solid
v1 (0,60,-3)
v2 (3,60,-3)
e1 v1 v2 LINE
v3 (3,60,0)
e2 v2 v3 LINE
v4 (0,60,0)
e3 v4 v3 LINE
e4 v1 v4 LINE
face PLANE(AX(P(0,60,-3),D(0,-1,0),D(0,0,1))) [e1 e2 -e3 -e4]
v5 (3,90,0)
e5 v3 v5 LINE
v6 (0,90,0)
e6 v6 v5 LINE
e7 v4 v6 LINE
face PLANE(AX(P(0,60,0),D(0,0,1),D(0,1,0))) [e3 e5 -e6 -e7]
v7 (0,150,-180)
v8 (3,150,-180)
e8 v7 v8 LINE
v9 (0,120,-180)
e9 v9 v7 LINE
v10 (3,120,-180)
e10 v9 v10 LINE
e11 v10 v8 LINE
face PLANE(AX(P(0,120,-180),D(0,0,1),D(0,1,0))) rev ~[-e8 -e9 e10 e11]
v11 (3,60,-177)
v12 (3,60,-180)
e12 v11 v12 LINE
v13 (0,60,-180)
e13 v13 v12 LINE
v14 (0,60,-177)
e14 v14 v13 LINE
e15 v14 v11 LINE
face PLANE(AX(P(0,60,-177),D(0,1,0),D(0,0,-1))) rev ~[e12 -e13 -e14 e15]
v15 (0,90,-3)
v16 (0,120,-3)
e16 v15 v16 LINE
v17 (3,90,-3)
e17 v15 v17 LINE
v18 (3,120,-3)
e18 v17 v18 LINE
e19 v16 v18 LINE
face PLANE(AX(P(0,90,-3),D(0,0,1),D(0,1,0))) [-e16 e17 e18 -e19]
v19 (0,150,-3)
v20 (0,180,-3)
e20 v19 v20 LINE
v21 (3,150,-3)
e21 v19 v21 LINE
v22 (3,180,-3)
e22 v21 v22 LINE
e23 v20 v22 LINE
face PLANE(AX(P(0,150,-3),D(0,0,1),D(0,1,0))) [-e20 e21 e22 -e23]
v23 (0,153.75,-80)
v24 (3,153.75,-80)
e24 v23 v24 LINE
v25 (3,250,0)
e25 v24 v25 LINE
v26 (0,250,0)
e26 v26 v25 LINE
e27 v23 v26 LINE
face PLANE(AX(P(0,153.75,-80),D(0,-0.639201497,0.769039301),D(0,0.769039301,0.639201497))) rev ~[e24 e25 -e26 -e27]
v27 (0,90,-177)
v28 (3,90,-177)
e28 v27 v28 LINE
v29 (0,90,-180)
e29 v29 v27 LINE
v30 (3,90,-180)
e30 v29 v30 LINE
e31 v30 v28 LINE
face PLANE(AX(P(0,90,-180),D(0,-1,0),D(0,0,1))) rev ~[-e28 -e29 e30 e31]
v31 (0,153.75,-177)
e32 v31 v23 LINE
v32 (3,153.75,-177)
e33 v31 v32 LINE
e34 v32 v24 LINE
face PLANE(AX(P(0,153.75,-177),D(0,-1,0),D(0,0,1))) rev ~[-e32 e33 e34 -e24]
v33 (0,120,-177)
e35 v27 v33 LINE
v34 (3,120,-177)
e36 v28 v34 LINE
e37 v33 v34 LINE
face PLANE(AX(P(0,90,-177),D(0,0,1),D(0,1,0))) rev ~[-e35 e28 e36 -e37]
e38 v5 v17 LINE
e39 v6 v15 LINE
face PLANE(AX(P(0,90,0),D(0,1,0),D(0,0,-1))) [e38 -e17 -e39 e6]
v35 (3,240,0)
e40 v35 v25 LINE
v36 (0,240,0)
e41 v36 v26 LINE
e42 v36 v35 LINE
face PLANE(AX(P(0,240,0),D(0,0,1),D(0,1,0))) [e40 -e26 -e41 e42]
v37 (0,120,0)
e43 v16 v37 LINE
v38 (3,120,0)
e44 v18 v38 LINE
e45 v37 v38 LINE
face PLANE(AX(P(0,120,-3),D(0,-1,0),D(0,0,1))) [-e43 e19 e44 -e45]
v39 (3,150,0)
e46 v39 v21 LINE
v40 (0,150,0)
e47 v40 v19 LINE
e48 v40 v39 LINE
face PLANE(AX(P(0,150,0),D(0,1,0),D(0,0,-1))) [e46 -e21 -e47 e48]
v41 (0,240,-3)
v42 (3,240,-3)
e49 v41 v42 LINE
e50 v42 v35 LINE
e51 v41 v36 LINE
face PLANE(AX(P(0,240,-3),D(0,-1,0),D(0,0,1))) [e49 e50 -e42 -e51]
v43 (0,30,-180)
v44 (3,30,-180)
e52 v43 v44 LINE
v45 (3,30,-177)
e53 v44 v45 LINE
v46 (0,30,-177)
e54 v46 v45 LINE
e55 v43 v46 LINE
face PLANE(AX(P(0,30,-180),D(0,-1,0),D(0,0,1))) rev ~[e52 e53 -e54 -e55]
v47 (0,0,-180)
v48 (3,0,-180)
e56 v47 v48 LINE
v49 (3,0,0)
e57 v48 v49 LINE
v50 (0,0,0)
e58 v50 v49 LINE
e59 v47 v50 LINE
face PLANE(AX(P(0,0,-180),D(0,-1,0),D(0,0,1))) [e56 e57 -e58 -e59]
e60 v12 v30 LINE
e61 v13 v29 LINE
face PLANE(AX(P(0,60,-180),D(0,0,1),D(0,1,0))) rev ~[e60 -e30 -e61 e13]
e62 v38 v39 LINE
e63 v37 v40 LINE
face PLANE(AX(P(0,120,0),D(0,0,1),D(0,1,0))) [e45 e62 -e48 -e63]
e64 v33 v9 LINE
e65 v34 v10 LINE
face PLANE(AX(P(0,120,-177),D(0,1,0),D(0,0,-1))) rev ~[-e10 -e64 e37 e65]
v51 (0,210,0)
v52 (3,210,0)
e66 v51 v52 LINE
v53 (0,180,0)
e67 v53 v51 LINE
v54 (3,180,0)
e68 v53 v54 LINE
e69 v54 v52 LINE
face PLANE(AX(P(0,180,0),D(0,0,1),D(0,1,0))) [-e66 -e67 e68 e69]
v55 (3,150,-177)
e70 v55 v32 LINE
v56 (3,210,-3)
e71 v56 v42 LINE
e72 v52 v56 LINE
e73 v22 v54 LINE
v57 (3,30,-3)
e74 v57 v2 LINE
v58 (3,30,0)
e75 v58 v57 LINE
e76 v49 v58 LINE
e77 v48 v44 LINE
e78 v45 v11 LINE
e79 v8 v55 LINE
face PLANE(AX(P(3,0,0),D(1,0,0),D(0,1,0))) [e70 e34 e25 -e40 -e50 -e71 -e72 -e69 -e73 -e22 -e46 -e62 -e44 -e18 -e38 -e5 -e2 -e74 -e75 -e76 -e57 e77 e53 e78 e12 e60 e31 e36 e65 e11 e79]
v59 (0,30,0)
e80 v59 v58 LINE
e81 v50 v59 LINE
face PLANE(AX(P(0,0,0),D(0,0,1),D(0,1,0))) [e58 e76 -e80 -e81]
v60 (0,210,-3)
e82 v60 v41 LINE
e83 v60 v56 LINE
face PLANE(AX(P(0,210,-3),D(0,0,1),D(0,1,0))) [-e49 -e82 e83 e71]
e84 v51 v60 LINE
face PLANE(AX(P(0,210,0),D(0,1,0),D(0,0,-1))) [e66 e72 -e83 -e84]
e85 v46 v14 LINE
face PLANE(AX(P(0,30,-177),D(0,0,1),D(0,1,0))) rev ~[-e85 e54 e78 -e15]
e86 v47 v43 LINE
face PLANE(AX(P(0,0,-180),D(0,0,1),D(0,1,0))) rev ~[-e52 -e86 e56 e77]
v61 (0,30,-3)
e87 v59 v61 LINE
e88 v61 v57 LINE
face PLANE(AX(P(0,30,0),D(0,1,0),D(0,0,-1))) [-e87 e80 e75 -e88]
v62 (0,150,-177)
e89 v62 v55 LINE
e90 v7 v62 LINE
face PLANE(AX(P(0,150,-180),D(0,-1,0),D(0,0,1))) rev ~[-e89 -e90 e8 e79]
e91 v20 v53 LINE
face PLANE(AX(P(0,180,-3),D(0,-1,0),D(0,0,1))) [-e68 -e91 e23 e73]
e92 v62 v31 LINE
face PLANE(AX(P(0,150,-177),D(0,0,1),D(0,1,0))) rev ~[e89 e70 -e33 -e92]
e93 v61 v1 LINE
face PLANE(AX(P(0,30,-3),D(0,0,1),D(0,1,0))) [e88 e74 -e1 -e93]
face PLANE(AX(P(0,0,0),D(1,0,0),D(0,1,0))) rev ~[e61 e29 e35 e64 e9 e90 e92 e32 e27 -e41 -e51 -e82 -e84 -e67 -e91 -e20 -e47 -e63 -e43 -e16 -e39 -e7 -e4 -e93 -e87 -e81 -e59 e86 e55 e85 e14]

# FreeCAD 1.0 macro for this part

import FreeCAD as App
import Part
import Sketcher

V = App.Vector
Q = App.Units.Quantity


def add_polygon(sketch, points):
    """Adds a closed chain of lines whose ends are joined by coincident constraints."""
    first, n = sketch.GeometryCount, len(points)
    for a, b in zip(points, points[1:] + points[:1]):
        sketch.addGeometry(Part.LineSegment(App.Vector(*a, 0), App.Vector(*b, 0)), False)
    for i in range(n):
        sketch.addConstraint(Sketcher.Constraint("Coincident", first + i, 2, first + (i + 1) % n, 1))

doc = App.newDocument("Part")
params = doc.addObject("Spreadsheet::Sheet", "Params")
for row, (alias, value) in enumerate([
    ("sketch1_width", "30 mm"),
    ("sketch1_width2", "10 mm"),
    ("sketch1_height", "180 mm"),
    ("sketch1_height2", "3 mm"),
    ("sketch1_width3", "3.75 mm"),
    ("pad1_length", "3 mm"),
], start=1):
    params.set(f"A{row}", alias)
    params.set(f"B{row}", "=" + value)
    params.setAlias(f"B{row}", alias)

body = doc.addObject("PartDesign::Body", "Body")

sketch1 = body.newObject("Sketcher::SketchObject", "Sketch")
sketch1.AttachmentSupport = (doc.getObject("YZ_Plane"), [""])
sketch1.MapMode = "FlatFace"
add_polygon(sketch1, [(0, 0), (0, -180), (30, -180), (30, -177), (60, -177), (60, -180), (90, -180), (90, -177), (120, -177), (120, -180), (150, -180), (150, -177), (153.8, -177), (153.8, -80), (250, 0), (240, 0), (240, -3), (210, -3), (210, 0), (180, 0), (180, -3), (150, -3), (150, 0), (120, 0), (120, -3), (90, -3), (90, 0), (60, 0), (60, -3), (30, -3), (30, 0)])
sketch1.addConstraint([
    Sketcher.Constraint("Vertical", 0),
    Sketcher.Constraint("Horizontal", 1),
    Sketcher.Constraint("Vertical", 2),
    Sketcher.Constraint("Horizontal", 3),
    Sketcher.Constraint("Vertical", 4),
    Sketcher.Constraint("Horizontal", 5),
    Sketcher.Constraint("Vertical", 6),
    Sketcher.Constraint("Horizontal", 7),
    Sketcher.Constraint("Vertical", 8),
    Sketcher.Constraint("Horizontal", 9),
    Sketcher.Constraint("Vertical", 10),
    Sketcher.Constraint("Horizontal", 11),
    Sketcher.Constraint("Vertical", 12),
    Sketcher.Constraint("Horizontal", 14),
    Sketcher.Constraint("Vertical", 15),
    Sketcher.Constraint("Horizontal", 16),
    Sketcher.Constraint("Vertical", 17),
    Sketcher.Constraint("Horizontal", 18),
    Sketcher.Constraint("Vertical", 19),
    Sketcher.Constraint("Horizontal", 20),
    Sketcher.Constraint("Vertical", 21),
    Sketcher.Constraint("Horizontal", 22),
    Sketcher.Constraint("Vertical", 23),
    Sketcher.Constraint("Horizontal", 24),
    Sketcher.Constraint("Vertical", 25),
    Sketcher.Constraint("Horizontal", 26),
    Sketcher.Constraint("Vertical", 27),
    Sketcher.Constraint("Horizontal", 28),
    Sketcher.Constraint("Vertical", 29),
    Sketcher.Constraint("Horizontal", 30),
    Sketcher.Constraint("Coincident", 30, 2, -1, 1),
    Sketcher.Constraint("PointOnObject", 13, 2, -1),
    Sketcher.Constraint("PointOnObject", 17, 2, -1),
    Sketcher.Constraint("PointOnObject", 21, 2, -1),
    Sketcher.Constraint("PointOnObject", 25, 2, -1),
    Sketcher.Constraint("Horizontal", 1, 2, 4, 2),
    Sketcher.Constraint("Horizontal", 3, 2, 6, 2),
    Sketcher.Constraint("Horizontal", 5, 2, 8, 2),
    Sketcher.Constraint("Horizontal", 7, 2, 10, 2),
    Sketcher.Constraint("Horizontal", 16, 2, 19, 2),
    Sketcher.Constraint("Horizontal", 20, 2, 23, 2),
    Sketcher.Constraint("Horizontal", 24, 2, 27, 2),
    Sketcher.Constraint("Vertical", 10, 2, 20, 2),
    Sketcher.Constraint("Vertical", 8, 2, 22, 2),
    Sketcher.Constraint("Vertical", 6, 2, 24, 2),
    Sketcher.Constraint("Vertical", 4, 2, 26, 2),
    Sketcher.Constraint("Vertical", 2, 2, 28, 2),
    Sketcher.Constraint("Equal", 1, 3),
    Sketcher.Constraint("Equal", 3, 5),
    Sketcher.Constraint("Equal", 5, 7),
    Sketcher.Constraint("Equal", 7, 9),
    Sketcher.Constraint("Equal", 9, 16),
    Sketcher.Constraint("Equal", 16, 18),
    Sketcher.Constraint("Equal", 18, 20),
    Sketcher.Constraint("Equal", 10, 15),
    Sketcher.Constraint("DistanceX", 1, 1, 1, 2, Q("30 mm")),
    Sketcher.Constraint("DistanceX", 14, 2, 14, 1, Q("10 mm")),
    Sketcher.Constraint("DistanceY", 0, 2, 0, 1, Q("180 mm")),
    Sketcher.Constraint("DistanceY", 2, 1, 2, 2, Q("3 mm")),
    Sketcher.Constraint("DistanceY", 9, 2, 12, 2, Q("100 mm")),
    Sketcher.Constraint("DistanceX", 11, 1, 11, 2, Q("3.75 mm")),
])
sketch1.setExpression("Constraints[86]", "Params.sketch1_width")
sketch1.setExpression("Constraints[87]", "Params.sketch1_width2")
sketch1.setExpression("Constraints[88]", "Params.sketch1_height")
sketch1.setExpression("Constraints[89]", "Params.sketch1_height2")
sketch1.setExpression("Constraints[91]", "Params.sketch1_width3")
pad1 = body.newObject("PartDesign::Pad", "Pad")
pad1.Profile = sketch1
pad1.setExpression("Length", "Params.pad1_length")

doc.recompute()
